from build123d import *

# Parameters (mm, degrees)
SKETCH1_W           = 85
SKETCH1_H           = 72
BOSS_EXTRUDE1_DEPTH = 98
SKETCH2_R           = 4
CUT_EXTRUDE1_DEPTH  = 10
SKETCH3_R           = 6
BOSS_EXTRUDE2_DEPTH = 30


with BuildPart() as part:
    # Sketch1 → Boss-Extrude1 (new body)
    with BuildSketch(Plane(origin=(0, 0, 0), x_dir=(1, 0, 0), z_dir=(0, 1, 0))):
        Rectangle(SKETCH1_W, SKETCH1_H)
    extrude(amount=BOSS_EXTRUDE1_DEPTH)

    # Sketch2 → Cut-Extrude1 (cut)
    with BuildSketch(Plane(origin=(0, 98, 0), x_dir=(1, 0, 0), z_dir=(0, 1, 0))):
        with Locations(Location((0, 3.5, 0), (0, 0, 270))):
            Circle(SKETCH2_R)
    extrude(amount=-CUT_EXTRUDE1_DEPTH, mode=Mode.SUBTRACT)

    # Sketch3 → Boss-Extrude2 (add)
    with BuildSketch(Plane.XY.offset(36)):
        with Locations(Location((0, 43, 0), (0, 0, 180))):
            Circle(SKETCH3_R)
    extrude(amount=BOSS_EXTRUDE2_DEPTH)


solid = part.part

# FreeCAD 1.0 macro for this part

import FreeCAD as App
import Part
import Sketcher

doc = App.newDocument("Part")
body = doc.addObject("PartDesign::Body", "Body")

sketch1 = body.newObject("Sketcher::SketchObject", "Sketch")
sketch1.AttachmentSupport = (doc.getObject("XZ_Plane"), [""])
sketch1.MapMode = "FlatFace"
sketch1.addGeometry(Part.LineSegment(App.Vector(-42, -36, 0), App.Vector(-42, 36, 0)), False)
sketch1.addGeometry(Part.LineSegment(App.Vector(-42, 36, 0), App.Vector(42, 36, 0)), False)
sketch1.addGeometry(Part.LineSegment(App.Vector(42, 36, 0), App.Vector(42, -36, 0)), False)
sketch1.addGeometry(Part.LineSegment(App.Vector(42, -36, 0), App.Vector(-42, -36, 0)), False)
sketch1.addConstraint(Sketcher.Constraint("Coincident", 0, 2, 1, 1))
sketch1.addConstraint(Sketcher.Constraint("Coincident", 1, 2, 2, 1))
sketch1.addConstraint(Sketcher.Constraint("Coincident", 2, 2, 3, 1))
sketch1.addConstraint(Sketcher.Constraint("Coincident", 3, 2, 0, 1))
sketch1.addConstraint(Sketcher.Constraint("Vertical", 0))
sketch1.addConstraint(Sketcher.Constraint("Horizontal", 1))
sketch1.addConstraint(Sketcher.Constraint("Vertical", 2))
sketch1.addConstraint(Sketcher.Constraint("Horizontal", 3))
sketch1.addConstraint(Sketcher.Constraint("Symmetric", 0, 2, 2, 2, -1, 1))
sketch1.addConstraint(Sketcher.Constraint("DistanceX", 1, 1, 1, 2, 85.0))
sketch1.addConstraint(Sketcher.Constraint("DistanceY", 0, 1, 0, 2, 72.0))
pad1 = body.newObject("PartDesign::Pad", "Pad")
pad1.Profile = sketch1
pad1.Length = 98
pad1.Reversed = True

sketch2 = body.newObject("Sketcher::SketchObject", "Sketch001")
sketch2.AttachmentSupport = (doc.getObject("XZ_Plane"), [""])
sketch2.MapMode = "FlatFace"
sketch2.AttachmentOffset = App.Placement(App.Vector(0, 0, -98), App.Rotation())
sketch2.addGeometry(Part.Circle(App.Vector(0, -3.5, 0), App.Vector(0, 0, 1), 4), False)
sketch2.addConstraint(Sketcher.Constraint("PointOnObject", 0, 3, -2))
sketch2.addConstraint(Sketcher.Constraint("Diameter", 0, 8.0))
sketch2.addConstraint(Sketcher.Constraint("DistanceY", 0, 3, -1, 1, 3.5))
pocket1 = body.newObject("PartDesign::Pocket", "Pocket")
pocket1.Profile = sketch2
pocket1.Length = 10
pocket1.Reversed = True

sketch3 = body.newObject("Sketcher::SketchObject", "Sketch002")
sketch3.AttachmentSupport = (doc.getObject("XY_Plane"), [""])
sketch3.MapMode = "FlatFace"
sketch3.AttachmentOffset = App.Placement(App.Vector(0, 0, 36), App.Rotation())
sketch3.addGeometry(Part.Circle(App.Vector(0, 43, 0), App.Vector(0, 0, 1), 6), False)
sketch3.addConstraint(Sketcher.Constraint("PointOnObject", 0, 3, -2))
sketch3.addConstraint(Sketcher.Constraint("Diameter", 0, 12.0))
sketch3.addConstraint(Sketcher.Constraint("DistanceY", -1, 1, 0, 3, 43.0))
pad2 = body.newObject("PartDesign::Pad", "Pad001")
pad2.Profile = sketch3
pad2.Length = 30

doc.recompute()
